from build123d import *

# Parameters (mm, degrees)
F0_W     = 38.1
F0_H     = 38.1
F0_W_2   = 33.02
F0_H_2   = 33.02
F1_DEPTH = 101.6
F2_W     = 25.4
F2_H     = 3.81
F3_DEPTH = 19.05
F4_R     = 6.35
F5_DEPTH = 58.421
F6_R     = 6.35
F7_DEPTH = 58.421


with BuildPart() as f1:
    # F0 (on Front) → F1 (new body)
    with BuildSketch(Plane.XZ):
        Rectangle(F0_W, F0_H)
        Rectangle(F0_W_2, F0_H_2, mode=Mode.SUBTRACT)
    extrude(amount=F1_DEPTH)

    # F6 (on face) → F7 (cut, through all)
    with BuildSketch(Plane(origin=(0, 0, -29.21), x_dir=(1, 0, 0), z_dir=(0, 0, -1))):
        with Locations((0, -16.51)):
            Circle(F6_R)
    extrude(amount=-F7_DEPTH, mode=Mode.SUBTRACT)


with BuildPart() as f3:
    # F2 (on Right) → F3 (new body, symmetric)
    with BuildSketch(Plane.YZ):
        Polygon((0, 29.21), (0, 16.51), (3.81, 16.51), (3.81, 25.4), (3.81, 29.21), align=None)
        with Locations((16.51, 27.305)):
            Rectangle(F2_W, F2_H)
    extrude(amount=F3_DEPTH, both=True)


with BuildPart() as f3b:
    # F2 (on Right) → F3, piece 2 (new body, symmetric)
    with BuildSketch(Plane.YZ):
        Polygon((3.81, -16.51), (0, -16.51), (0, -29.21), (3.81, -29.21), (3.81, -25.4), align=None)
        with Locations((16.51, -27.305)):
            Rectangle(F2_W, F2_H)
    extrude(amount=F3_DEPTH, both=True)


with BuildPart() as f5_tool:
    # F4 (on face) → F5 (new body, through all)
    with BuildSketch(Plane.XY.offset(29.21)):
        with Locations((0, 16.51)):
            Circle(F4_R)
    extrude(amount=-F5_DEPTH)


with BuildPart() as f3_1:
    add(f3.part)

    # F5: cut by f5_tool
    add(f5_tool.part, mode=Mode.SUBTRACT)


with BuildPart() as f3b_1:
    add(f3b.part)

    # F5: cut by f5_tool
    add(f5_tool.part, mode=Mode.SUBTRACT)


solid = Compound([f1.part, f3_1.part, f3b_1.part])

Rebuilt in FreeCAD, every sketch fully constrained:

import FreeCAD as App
import Part
import Sketcher

V = App.Vector
Q = App.Units.Quantity

doc = App.newDocument("Part")
params = doc.addObject("Spreadsheet::Sheet", "Params")
for row, (alias, value) in enumerate([
    ("sketch1_width", "1.5 in"),
    ("sketch1_width2", "1.3 in"),
    ("pad1_length", "4 in"),
    ("sketch2_diameter", "0.5 in"),
    ("sketch3_width", "1 in"),
    ("sketch3_height", "0.5 in"),
    ("sketch3_width2", "0.15 in"),
    ("pad2_length", "1.5 in"),
    ("sketch4_width", "1 in"),
    ("sketch4_height", "0.5 in"),
    ("sketch4_width2", "0.15 in"),
    ("pad3_length", "1.5 in"),
    ("sketch5_diameter", "0.5 in"),
    ("pad4_length", "58.421 mm"),
], start=1):
    params.set(f"A{row}", alias)
    params.set(f"B{row}", "=" + value)
    params.setAlias(f"B{row}", alias)

body = doc.addObject("PartDesign::Body", "Body")

# Sketch on XZ plane
sketch1 = doc.addObject("Sketcher::SketchObject", "Sketch")
body.addObject(sketch1)
sketch1.AttachmentSupport = (doc.XZ_Plane, [""])
sketch1.MapMode = "FlatFace"
sketch1.addGeometry(Part.LineSegment(V(-19, 19, 0), V(-19, -19, 0)), False)
sketch1.addGeometry(Part.LineSegment(V(-19, -19, 0), V(19, -19, 0)), False)
sketch1.addGeometry(Part.LineSegment(V(19, -19, 0), V(19, 19, 0)), False)
sketch1.addGeometry(Part.LineSegment(V(19, 19, 0), V(-19, 19, 0)), False)
sketch1.addGeometry(Part.LineSegment(V(17, -17, 0), V(-17, -17, 0)), False)
sketch1.addGeometry(Part.LineSegment(V(-17, -17, 0), V(-17, 17, 0)), False)
sketch1.addGeometry(Part.LineSegment(V(-17, 17, 0), V(17, 17, 0)), False)
sketch1.addGeometry(Part.LineSegment(V(17, 17, 0), V(17, -17, 0)), False)
sketch1.addConstraint(Sketcher.Constraint("Coincident", 0, 2, 1, 1))
sketch1.addConstraint(Sketcher.Constraint("Coincident", 1, 2, 2, 1))
sketch1.addConstraint(Sketcher.Constraint("Coincident", 2, 2, 3, 1))
sketch1.addConstraint(Sketcher.Constraint("Coincident", 3, 2, 0, 1))
sketch1.addConstraint(Sketcher.Constraint("Coincident", 4, 2, 5, 1))
sketch1.addConstraint(Sketcher.Constraint("Coincident", 5, 2, 6, 1))
sketch1.addConstraint(Sketcher.Constraint("Coincident", 6, 2, 7, 1))
sketch1.addConstraint(Sketcher.Constraint("Coincident", 7, 2, 4, 1))
sketch1.addConstraint(Sketcher.Constraint("Vertical", 0))
sketch1.addConstraint(Sketcher.Constraint("Horizontal", 1))
sketch1.addConstraint(Sketcher.Constraint("Vertical", 2))
sketch1.addConstraint(Sketcher.Constraint("Horizontal", 3))
sketch1.addConstraint(Sketcher.Constraint("Horizontal", 4))
sketch1.addConstraint(Sketcher.Constraint("Vertical", 5))
sketch1.addConstraint(Sketcher.Constraint("Horizontal", 6))
sketch1.addConstraint(Sketcher.Constraint("Vertical", 7))
sketch1.addConstraint(Sketcher.Constraint("Symmetric", 0, 2, 2, 2, -1, 1))
sketch1.addConstraint(Sketcher.Constraint("Symmetric", 4, 2, 6, 2, -1, 1))
sketch1.addConstraint(Sketcher.Constraint("Equal", 3, 0))
sketch1.addConstraint(Sketcher.Constraint("Equal", 6, 5))
sketch1.addConstraint(Sketcher.Constraint("DistanceX", 1, 1, 1, 2, Q("1.5 in")))
sketch1.addConstraint(Sketcher.Constraint("DistanceX", 4, 2, 4, 1, Q("1.3 in")))
sketch1.setExpression("Constraints[20]", "Params.sketch1_width")
sketch1.setExpression("Constraints[21]", "Params.sketch1_width2")
pad1 = doc.addObject("PartDesign::Pad", "Pad")
body.addObject(pad1)
pad1.Profile = sketch1
pad1.setExpression("Length", "Params.pad1_length")

# Sketch on XY plane
sketch2 = doc.addObject("Sketcher::SketchObject", "Sketch001")
body.addObject(sketch2)
sketch2.AttachmentSupport = (doc.XY_Plane, [""])
sketch2.MapMode = "FlatFace"
sketch2.AttachmentOffset = App.Placement(V(0, 0, -1.15 * 25.4), App.Rotation())
sketch2.addGeometry(Part.Circle(V(0, 17, 0), V(0, 0, 1), 6), False)
sketch2.addConstraint(Sketcher.Constraint("PointOnObject", 0, 3, -2))
sketch2.addConstraint(Sketcher.Constraint("Diameter", 0, Q("0.5 in")))
sketch2.addConstraint(Sketcher.Constraint("DistanceY", -1, 1, 0, 3, Q("0.65 in")))
sketch2.setExpression("Constraints[1]", "Params.sketch2_diameter")
pocket1 = doc.addObject("PartDesign::Pocket", "Pocket")
body.addObject(pocket1)
pocket1.Profile = sketch2
pocket1.Type = "ThroughAll"
pocket1.Reversed = True
body2 = doc.addObject("PartDesign::Body", "Body001")

# Sketch on YZ plane
sketch3 = doc.addObject("Sketcher::SketchObject", "Sketch002")
body2.addObject(sketch3)
sketch3.AttachmentSupport = (doc.getObject("YZ_Plane001"), [""])
sketch3.MapMode = "FlatFace"
sketch3.addGeometry(Part.LineSegment(V(0, 29.2, 0), V(0, 16.5, 0)), False)
sketch3.addGeometry(Part.LineSegment(V(0, 16.5, 0), V(3.8, 16.5, 0)), False)
sketch3.addGeometry(Part.LineSegment(V(3.8, 16.5, 0), V(3.8, 25.4, 0)), False)
sketch3.addGeometry(Part.LineSegment(V(3.8, 25.4, 0), V(29.2, 25.4, 0)), False)
sketch3.addGeometry(Part.LineSegment(V(29.2, 25.4, 0), V(29.2, 29.2, 0)), False)
sketch3.addGeometry(Part.LineSegment(V(29.2, 29.2, 0), V(0, 29.2, 0)), False)
sketch3.addConstraint(Sketcher.Constraint("Coincident", 0, 2, 1, 1))
sketch3.addConstraint(Sketcher.Constraint("Coincident", 1, 2, 2, 1))
sketch3.addConstraint(Sketcher.Constraint("Coincident", 2, 2, 3, 1))
sketch3.addConstraint(Sketcher.Constraint("Coincident", 3, 2, 4, 1))
sketch3.addConstraint(Sketcher.Constraint("Coincident", 4, 2, 5, 1))
sketch3.addConstraint(Sketcher.Constraint("Coincident", 5, 2, 0, 1))
sketch3.addConstraint(Sketcher.Constraint("Vertical", 0))
sketch3.addConstraint(Sketcher.Constraint("Horizontal", 1))
sketch3.addConstraint(Sketcher.Constraint("Vertical", 2))
sketch3.addConstraint(Sketcher.Constraint("Horizontal", 3))
sketch3.addConstraint(Sketcher.Constraint("Vertical", 4))
sketch3.addConstraint(Sketcher.Constraint("Horizontal", 5))
sketch3.addConstraint(Sketcher.Constraint("PointOnObject", 0, 2, -2))
sketch3.addConstraint(Sketcher.Constraint("Equal", 1, 4))
sketch3.addConstraint(Sketcher.Constraint("DistanceX", 3, 1, 3, 2, Q("1 in")))
sketch3.addConstraint(Sketcher.Constraint("DistanceY", 0, 2, 0, 1, Q("0.5 in")))
sketch3.addConstraint(Sketcher.Constraint("DistanceY", -1, 1, 2, 2, Q("1 in")))
sketch3.addConstraint(Sketcher.Constraint("DistanceX", 1, 1, 1, 2, Q("0.15 in")))
sketch3.setExpression("Constraints[14]", "Params.sketch3_width")
sketch3.setExpression("Constraints[15]", "Params.sketch3_height")
sketch3.setExpression("Constraints[17]", "Params.sketch3_width2")
pad2 = doc.addObject("PartDesign::Pad", "Pad001")
body2.addObject(pad2)
pad2.Profile = sketch3
pad2.setExpression("Length", "Params.pad2_length")
pad2.Midplane = True
body3 = doc.addObject("PartDesign::Body", "Body002")

# Sketch on YZ plane
sketch4 = doc.addObject("Sketcher::SketchObject", "Sketch003")
body3.addObject(sketch4)
sketch4.AttachmentSupport = (doc.getObject("YZ_Plane002"), [""])
sketch4.MapMode = "FlatFace"
sketch4.addGeometry(Part.LineSegment(V(3.8, -16.5, 0), V(0, -16.5, 0)), False)
sketch4.addGeometry(Part.LineSegment(V(0, -16.5, 0), V(0, -29.2, 0)), False)
sketch4.addGeometry(Part.LineSegment(V(0, -29.2, 0), V(29.2, -29.2, 0)), False)
sketch4.addGeometry(Part.LineSegment(V(29.2, -29.2, 0), V(29.2, -25.4, 0)), False)
sketch4.addGeometry(Part.LineSegment(V(29.2, -25.4, 0), V(3.8, -25.4, 0)), False)
sketch4.addGeometry(Part.LineSegment(V(3.8, -25.4, 0), V(3.8, -16.5, 0)), False)
sketch4.addConstraint(Sketcher.Constraint("Coincident", 0, 2, 1, 1))
sketch4.addConstraint(Sketcher.Constraint("Coincident", 1, 2, 2, 1))
sketch4.addConstraint(Sketcher.Constraint("Coincident", 2, 2, 3, 1))
sketch4.addConstraint(Sketcher.Constraint("Coincident", 3, 2, 4, 1))
sketch4.addConstraint(Sketcher.Constraint("Coincident", 4, 2, 5, 1))
sketch4.addConstraint(Sketcher.Constraint("Coincident", 5, 2, 0, 1))
sketch4.addConstraint(Sketcher.Constraint("Horizontal", 0))
sketch4.addConstraint(Sketcher.Constraint("Vertical", 1))
sketch4.addConstraint(Sketcher.Constraint("Horizontal", 2))
sketch4.addConstraint(Sketcher.Constraint("Vertical", 3))
sketch4.addConstraint(Sketcher.Constraint("Horizontal", 4))
sketch4.addConstraint(Sketcher.Constraint("Vertical", 5))
sketch4.addConstraint(Sketcher.Constraint("PointOnObject", 0, 2, -2))
sketch4.addConstraint(Sketcher.Constraint("Equal", 0, 3))
sketch4.addConstraint(Sketcher.Constraint("DistanceX", 4, 2, 4, 1, Q("1 in")))
sketch4.addConstraint(Sketcher.Constraint("DistanceY", 1, 2, 1, 1, Q("0.5 in")))
sketch4.addConstraint(Sketcher.Constraint("DistanceY", 3, 2, -1, 1, Q("1 in")))
sketch4.addConstraint(Sketcher.Constraint("DistanceX", 0, 2, 0, 1, Q("0.15 in")))
sketch4.setExpression("Constraints[14]", "Params.sketch4_width")
sketch4.setExpression("Constraints[15]", "Params.sketch4_height")
sketch4.setExpression("Constraints[17]", "Params.sketch4_width2")
pad3 = doc.addObject("PartDesign::Pad", "Pad002")
body3.addObject(pad3)
pad3.Profile = sketch4
pad3.setExpression("Length", "Params.pad3_length")
pad3.Midplane = True
body4 = doc.addObject("PartDesign::Body", "Body003")

# Sketch on XY plane
sketch5 = doc.addObject("Sketcher::SketchObject", "Sketch004")
body4.addObject(sketch5)
sketch5.AttachmentSupport = (doc.getObject("XY_Plane003"), [""])
sketch5.MapMode = "FlatFace"
sketch5.AttachmentOffset = App.Placement(V(0, 0, 1.15 * 25.4), App.Rotation())
sketch5.addGeometry(Part.Circle(V(0, 17, 0), V(0, 0, 1), 6), False)
sketch5.addConstraint(Sketcher.Constraint("PointOnObject", 0, 3, -2))
sketch5.addConstraint(Sketcher.Constraint("Diameter", 0, Q("0.5 in")))
sketch5.addConstraint(Sketcher.Constraint("DistanceY", -1, 1, 0, 3, Q("0.65 in")))
sketch5.setExpression("Constraints[1]", "Params.sketch5_diameter")
pad4 = doc.addObject("PartDesign::Pad", "Pad003")
body4.addObject(pad4)
pad4.Profile = sketch5
pad4.setExpression("Length", "Params.pad4_length")
pad4.Reversed = True
doc.recompute()

body5 = doc.addObject("PartDesign::Body", "Body004")
body5.BaseFeature = body4
boolean = doc.addObject("PartDesign::Boolean", "Boolean")
body2.addObject(boolean)
boolean.Type = "Cut"
boolean.addObjects([body5])
doc.recompute()

boolean2 = doc.addObject("PartDesign::Boolean", "Boolean001")
body3.addObject(boolean2)
boolean2.Type = "Cut"
boolean2.addObjects([body4])

doc.recompute()
